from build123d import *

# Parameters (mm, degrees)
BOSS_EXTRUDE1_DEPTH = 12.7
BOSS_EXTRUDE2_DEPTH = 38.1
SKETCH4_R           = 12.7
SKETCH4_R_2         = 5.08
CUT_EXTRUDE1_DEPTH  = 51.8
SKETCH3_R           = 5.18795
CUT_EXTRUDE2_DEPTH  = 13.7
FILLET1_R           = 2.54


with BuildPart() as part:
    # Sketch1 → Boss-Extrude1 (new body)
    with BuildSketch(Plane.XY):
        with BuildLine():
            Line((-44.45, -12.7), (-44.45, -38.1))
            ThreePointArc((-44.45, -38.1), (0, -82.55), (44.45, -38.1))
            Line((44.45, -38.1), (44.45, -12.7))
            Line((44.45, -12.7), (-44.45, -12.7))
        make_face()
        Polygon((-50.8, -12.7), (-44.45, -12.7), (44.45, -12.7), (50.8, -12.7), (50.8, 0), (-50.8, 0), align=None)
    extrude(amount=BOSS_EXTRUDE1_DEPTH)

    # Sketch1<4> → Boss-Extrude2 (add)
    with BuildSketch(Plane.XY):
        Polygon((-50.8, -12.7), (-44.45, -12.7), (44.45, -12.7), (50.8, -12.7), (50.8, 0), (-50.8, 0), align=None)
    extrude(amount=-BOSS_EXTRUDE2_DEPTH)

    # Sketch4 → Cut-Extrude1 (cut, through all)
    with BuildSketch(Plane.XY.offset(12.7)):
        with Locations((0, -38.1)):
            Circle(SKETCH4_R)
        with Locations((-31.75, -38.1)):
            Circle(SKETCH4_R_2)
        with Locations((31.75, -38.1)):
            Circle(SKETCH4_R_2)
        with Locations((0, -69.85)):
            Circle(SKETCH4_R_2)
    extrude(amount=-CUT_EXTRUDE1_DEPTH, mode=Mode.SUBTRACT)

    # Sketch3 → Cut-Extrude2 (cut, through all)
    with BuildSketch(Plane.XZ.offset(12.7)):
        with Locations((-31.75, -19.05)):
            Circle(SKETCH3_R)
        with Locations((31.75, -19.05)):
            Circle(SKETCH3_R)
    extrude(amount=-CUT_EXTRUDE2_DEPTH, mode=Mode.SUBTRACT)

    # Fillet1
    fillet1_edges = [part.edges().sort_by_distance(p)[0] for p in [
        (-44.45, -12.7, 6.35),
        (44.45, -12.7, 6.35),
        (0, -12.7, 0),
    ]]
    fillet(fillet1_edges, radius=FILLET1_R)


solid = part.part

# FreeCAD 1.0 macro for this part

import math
import FreeCAD as App
import Part
import Sketcher
Q = App.Units.Quantity


def edges_at(feature, points):
    """Names of the edges that pass closest to the given points."""
    edges = feature.Shape.Edges
    near = lambda p: min(range(len(edges)), key=lambda i: edges[i].distToShape(Part.Vertex(*p))[0])
    return sorted({f"Edge{near(p) + 1}" for p in points})

doc = App.newDocument("Part")
body = doc.addObject("PartDesign::Body", "Body")

# Sketch on XY plane
sketch1 = doc.addObject("Sketcher::SketchObject", "Sketch")
body.addObject(sketch1)
sketch1.AttachmentSupport = (doc.XY_Plane, [""])
sketch1.MapMode = "FlatFace"
sketch1.addGeometry([
    Part.LineSegment(App.Vector(-44, -13, 0), App.Vector(-44, -38, 0)),  # 0
    Part.ArcOfCircle(Part.Circle(App.Vector(0, -38, 0), App.Vector(0, 0, 1), 44), math.radians(180), math.radians(360)),  # 1
    Part.LineSegment(App.Vector(44, -38, 0), App.Vector(44, -13, 0)),  # 2
    Part.LineSegment(App.Vector(44, -13, 0), App.Vector(51, -13, 0)),  # 3
    Part.LineSegment(App.Vector(51, -13, 0), App.Vector(51, 0, 0)),  # 4
    Part.LineSegment(App.Vector(51, 0, 0), App.Vector(-51, 0, 0)),  # 5
    Part.LineSegment(App.Vector(-51, 0, 0), App.Vector(-51, -13, 0)),  # 6
    Part.LineSegment(App.Vector(-51, -13, 0), App.Vector(-44, -13, 0)),  # 7
], False)
sketch1.addConstraint([
    Sketcher.Constraint("Tangent", 0, 2, 1, 1),
    Sketcher.Constraint("Tangent", 1, 2, 2, 1),
    Sketcher.Constraint("Coincident", 2, 2, 3, 1),
    Sketcher.Constraint("Coincident", 3, 2, 4, 1),
    Sketcher.Constraint("Coincident", 4, 2, 5, 1),
    Sketcher.Constraint("Coincident", 5, 2, 6, 1),
    Sketcher.Constraint("Coincident", 6, 2, 7, 1),
    Sketcher.Constraint("Coincident", 7, 2, 0, 1),
    Sketcher.Constraint("Vertical", 0),
    Sketcher.Constraint("Vertical", 2),
    Sketcher.Constraint("Horizontal", 3),
    Sketcher.Constraint("Vertical", 4),
    Sketcher.Constraint("Horizontal", 5),
    Sketcher.Constraint("Vertical", 6),
    Sketcher.Constraint("Horizontal", 7),
    Sketcher.Constraint("Symmetric", 4, 2, 5, 2, -1, 1),
    Sketcher.Constraint("Symmetric", 2, 2, 7, 2, -2),
    Sketcher.Constraint("DistanceX", 5, 2, 5, 1, Q("4 in")),
    Sketcher.Constraint("DistanceY", 0, 2, 0, 1, Q("1 in")),
    Sketcher.Constraint("Radius", 1, Q("1.75 in")),
    Sketcher.Constraint("DistanceY", 4, 1, 4, 2, Q("0.5 in")),
])
pad1 = doc.addObject("PartDesign::Pad", "Pad")
body.addObject(pad1)
pad1.Profile = sketch1
pad1.Length = Q("0.5 in")

# Sketch on XY plane
sketch2 = doc.addObject("Sketcher::SketchObject", "Sketch001")
body.addObject(sketch2)
sketch2.AttachmentSupport = (doc.XY_Plane, [""])
sketch2.MapMode = "FlatFace"
sketch2.addGeometry([
    Part.LineSegment(App.Vector(-51, -13, 0), App.Vector(51, -13, 0)),
    Part.LineSegment(App.Vector(51, -13, 0), App.Vector(51, 0, 0)),
    Part.LineSegment(App.Vector(51, 0, 0), App.Vector(-51, 0, 0)),
    Part.LineSegment(App.Vector(-51, 0, 0), App.Vector(-51, -13, 0)),
], False)
sketch2.addConstraint([
    Sketcher.Constraint("Coincident", 0, 2, 1, 1),
    Sketcher.Constraint("Coincident", 1, 2, 2, 1),
    Sketcher.Constraint("Coincident", 2, 2, 3, 1),
    Sketcher.Constraint("Coincident", 3, 2, 0, 1),
    Sketcher.Constraint("Horizontal", 0),
    Sketcher.Constraint("Vertical", 1),
    Sketcher.Constraint("Horizontal", 2),
    Sketcher.Constraint("Vertical", 3),
    Sketcher.Constraint("Symmetric", 1, 2, 2, 2, -1, 1),
    Sketcher.Constraint("DistanceX", 0, 1, 0, 2, Q("4 in")),
    Sketcher.Constraint("DistanceY", 1, 1, 1, 2, Q("0.5 in")),
])
pad2 = doc.addObject("PartDesign::Pad", "Pad001")
body.addObject(pad2)
pad2.Profile = sketch2
pad2.Length = Q("1.5 in")
pad2.Reversed = True

# Sketch on XY plane
sketch3 = doc.addObject("Sketcher::SketchObject", "Sketch002")
body.addObject(sketch3)
sketch3.AttachmentSupport = (doc.XY_Plane, [""])
sketch3.MapMode = "FlatFace"
sketch3.AttachmentOffset = App.Placement(App.Vector(0, 0, 0.5 * 25.4), App.Rotation())
sketch3.addGeometry([
    Part.Circle(App.Vector(0, -38, 0), App.Vector(0, 0, 1), 13),
    Part.Circle(App.Vector(-32, -38, 0), App.Vector(0, 0, 1), 5),
    Part.Circle(App.Vector(32, -38, 0), App.Vector(0, 0, 1), 5),
    Part.Circle(App.Vector(0, -70, 0), App.Vector(0, 0, 1), 5),
], False)
sketch3.addConstraint([
    Sketcher.Constraint("Equal", 1, 2),
    Sketcher.Constraint("Equal", 2, 3),
    Sketcher.Constraint("Symmetric", 1, 3, 2, 3, -2),
    Sketcher.Constraint("PointOnObject", 0, 3, -2),
    Sketcher.Constraint("PointOnObject", 3, 3, -2),
    Sketcher.Constraint("Horizontal", 0, 3, 1, 3),
    Sketcher.Constraint("Diameter", 0, Q("1 in")),
    Sketcher.Constraint("Diameter", 1, Q("0.4 in")),
    Sketcher.Constraint("DistanceY", 0, 3, -1, 1, Q("1.5 in")),
    Sketcher.Constraint("DistanceX", 1, 3, 2, 3, Q("2.5 in")),
    Sketcher.Constraint("DistanceY", 3, 3, -1, 1, Q("2.75 in")),
])
pocket1 = doc.addObject("PartDesign::Pocket", "Pocket")
body.addObject(pocket1)
pocket1.Profile = sketch3
pocket1.Type = "ThroughAll"

# Sketch on XZ plane
sketch4 = doc.addObject("Sketcher::SketchObject", "Sketch003")
body.addObject(sketch4)
sketch4.AttachmentSupport = (doc.XZ_Plane, [""])
sketch4.MapMode = "FlatFace"
sketch4.AttachmentOffset = App.Placement(App.Vector(0, 0, 0.5 * 25.4), App.Rotation())
sketch4.addGeometry([
    Part.Circle(App.Vector(-32, -19, 0), App.Vector(0, 0, 1), 5),
    Part.Circle(App.Vector(32, -19, 0), App.Vector(0, 0, 1), 5),
], False)
sketch4.addConstraint([
    Sketcher.Constraint("Equal", 0, 1),
    Sketcher.Constraint("Symmetric", 0, 3, 1, 3, -2),
    Sketcher.Constraint("Diameter", 0, Q("0.4085 in")),
    Sketcher.Constraint("DistanceX", 0, 3, 1, 3, Q("2.5 in")),
    Sketcher.Constraint("DistanceY", 0, 3, -1, 1, Q("0.75 in")),
])
pocket2 = doc.addObject("PartDesign::Pocket", "Pocket001")
body.addObject(pocket2)
pocket2.Profile = sketch4
pocket2.Type = "ThroughAll"
doc.recompute()

fillet = doc.addObject("PartDesign::Fillet", "Fillet")
body.addObject(fillet)
fillet.Base = (pocket2, edges_at(pocket2, [(-44.45, -12.7, 6.35), (44.45, -12.7, 6.35), (0, -12.7, 0)]))
fillet.Radius = Q("0.1 in")

doc.recompute()
